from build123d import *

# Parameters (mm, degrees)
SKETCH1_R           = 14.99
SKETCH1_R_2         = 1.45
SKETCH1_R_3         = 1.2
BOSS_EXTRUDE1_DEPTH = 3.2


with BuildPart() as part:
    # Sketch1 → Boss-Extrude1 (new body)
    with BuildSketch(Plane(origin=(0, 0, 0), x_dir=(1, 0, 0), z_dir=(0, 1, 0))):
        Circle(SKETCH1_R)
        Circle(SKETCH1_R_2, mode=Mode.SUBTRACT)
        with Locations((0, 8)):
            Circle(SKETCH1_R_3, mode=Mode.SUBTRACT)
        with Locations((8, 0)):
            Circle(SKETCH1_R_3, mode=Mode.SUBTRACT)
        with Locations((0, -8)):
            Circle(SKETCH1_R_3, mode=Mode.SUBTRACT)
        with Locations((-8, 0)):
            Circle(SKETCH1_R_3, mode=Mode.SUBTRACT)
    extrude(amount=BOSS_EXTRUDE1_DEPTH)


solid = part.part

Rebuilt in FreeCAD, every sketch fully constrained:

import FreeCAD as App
import Part
import Sketcher

doc = App.newDocument("Part")
body = doc.addObject("PartDesign::Body", "Body")

# Sketch on XZ plane
sketch1 = body.newObject("Sketcher::SketchObject", "Sketch")
sketch1.AttachmentSupport = (doc.getObject("XZ_Plane"), [""])
sketch1.MapMode = "FlatFace"
sketch1.addGeometry([
    Part.Circle(App.Vector(0, 0, 0), App.Vector(0, 0, 1), 15),  # 0
    Part.Circle(App.Vector(0, 8, 0), App.Vector(0, 0, 1), 1.2),  # 1
    Part.Circle(App.Vector(-8, 0, 0), App.Vector(0, 0, 1), 1.2),  # 2
    Part.Circle(App.Vector(0, 0, 0), App.Vector(0, 0, 1), 1.4),  # 3
    Part.Circle(App.Vector(8, 0, 0), App.Vector(0, 0, 1), 1.2),  # 4
    Part.Circle(App.Vector(0, -8, 0), App.Vector(0, 0, 1), 1.2),  # 5
], False)
sketch1.addConstraint([
    Sketcher.Constraint("Coincident", 0, 3, -1, 1),
    Sketcher.Constraint("Coincident", 3, 3, -1, 1),
    Sketcher.Constraint("Equal", 1, 2),
    Sketcher.Constraint("Equal", 2, 4),
    Sketcher.Constraint("Equal", 4, 5),
    Sketcher.Constraint("Symmetric", 2, 3, 4, 3, -1, 1),
    Sketcher.Constraint("Symmetric", 1, 3, 5, 3, -1, 1),
    Sketcher.Constraint("PointOnObject", 1, 3, -2),
    Sketcher.Constraint("PointOnObject", 2, 3, -1),
    Sketcher.Constraint("Diameter", 1, 2.4),
    Sketcher.Constraint("Diameter", 3, 2.9),
    Sketcher.Constraint("Diameter", 0, 29.98),
    Sketcher.Constraint("DistanceY", -1, 1, 1, 3, 8.0),
    Sketcher.Constraint("DistanceX", 2, 3, -1, 1, 8.0),
])
pad1 = body.newObject("PartDesign::Pad", "Pad")
pad1.Profile = sketch1
pad1.Length = 3.2
pad1.Reversed = True

doc.recompute()
